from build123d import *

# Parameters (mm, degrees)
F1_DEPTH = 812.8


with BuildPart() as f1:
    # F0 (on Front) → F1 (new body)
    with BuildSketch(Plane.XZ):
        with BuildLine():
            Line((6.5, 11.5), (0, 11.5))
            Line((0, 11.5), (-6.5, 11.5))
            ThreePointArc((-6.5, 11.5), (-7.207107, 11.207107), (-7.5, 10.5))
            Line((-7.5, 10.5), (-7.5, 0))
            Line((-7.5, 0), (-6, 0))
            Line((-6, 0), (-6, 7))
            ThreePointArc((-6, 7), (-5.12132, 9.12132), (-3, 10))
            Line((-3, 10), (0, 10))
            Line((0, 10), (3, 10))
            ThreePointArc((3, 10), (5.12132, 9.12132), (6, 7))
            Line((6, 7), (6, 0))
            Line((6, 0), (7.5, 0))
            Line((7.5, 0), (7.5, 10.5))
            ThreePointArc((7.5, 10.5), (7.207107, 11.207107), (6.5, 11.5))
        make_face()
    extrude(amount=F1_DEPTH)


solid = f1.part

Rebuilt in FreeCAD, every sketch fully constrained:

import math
import FreeCAD as App
import Part
import Sketcher

doc = App.newDocument("Part")
body = doc.addObject("PartDesign::Body", "Body")

# Sketch on XZ plane
sketch1 = doc.addObject("Sketcher::SketchObject", "Sketch")
body.addObject(sketch1)
sketch1.AttachmentSupport = (doc.XZ_Plane, [""])
sketch1.MapMode = "FlatFace"
sketch1.addGeometry(Part.LineSegment(App.Vector(6.5, 11.5, 0), App.Vector(-6.5, 11.5, 0)), False)
sketch1.addGeometry(Part.ArcOfCircle(Part.Circle(App.Vector(-6.500001, 10.500001, 0), App.Vector(0, 0, 1), 0.999999), math.radians(89.999957), math.radians(180.000043)), False)
sketch1.addGeometry(Part.LineSegment(App.Vector(-7.5, 10.5, 0), App.Vector(-7.5, 0, 0)), False)
sketch1.addGeometry(Part.LineSegment(App.Vector(-7.5, 0, 0), App.Vector(-6, 0, 0)), False)
sketch1.addGeometry(Part.LineSegment(App.Vector(-6, 0, 0), App.Vector(-6, 7, 0)), False)
sketch1.addGeometry(Part.ArcOfCircle(Part.Circle(App.Vector(-2.999999, 6.999999, 0), App.Vector(0, 0, 1), 3.000001), math.radians(90.000022), math.radians(179.999978)), False)
sketch1.addGeometry(Part.LineSegment(App.Vector(-3, 10, 0), App.Vector(3, 10, 0)), False)
sketch1.addGeometry(Part.ArcOfCircle(Part.Circle(App.Vector(2.999999, 6.999999, 0), App.Vector(0, 0, 1), 3.000001), math.radians(0.000022), math.radians(89.999978)), False)
sketch1.addGeometry(Part.LineSegment(App.Vector(6, 7, 0), App.Vector(6, 0, 0)), False)
sketch1.addGeometry(Part.LineSegment(App.Vector(6, 0, 0), App.Vector(7.5, 0, 0)), False)
sketch1.addGeometry(Part.LineSegment(App.Vector(7.5, 0, 0), App.Vector(7.5, 10.5, 0)), False)
sketch1.addGeometry(Part.ArcOfCircle(Part.Circle(App.Vector(6.500001, 10.500001, 0), App.Vector(0, 0, 1), 0.999999), math.radians(-0.000043), math.radians(90.000043)), False)
sketch1.addConstraint(Sketcher.Constraint("Tangent", 0, 2, 1, 1))
sketch1.addConstraint(Sketcher.Constraint("Tangent", 1, 2, 2, 1))
sketch1.addConstraint(Sketcher.Constraint("Coincident", 2, 2, 3, 1))
sketch1.addConstraint(Sketcher.Constraint("Coincident", 3, 2, 4, 1))
sketch1.addConstraint(Sketcher.Constraint("Tangent", 4, 2, 5, 2))
sketch1.addConstraint(Sketcher.Constraint("Tangent", 5, 1, 6, 1))
sketch1.addConstraint(Sketcher.Constraint("Tangent", 6, 2, 7, 2))
sketch1.addConstraint(Sketcher.Constraint("Tangent", 7, 1, 8, 1))
sketch1.addConstraint(Sketcher.Constraint("Coincident", 8, 2, 9, 1))
sketch1.addConstraint(Sketcher.Constraint("Coincident", 9, 2, 10, 1))
sketch1.addConstraint(Sketcher.Constraint("Tangent", 10, 2, 11, 1))
sketch1.addConstraint(Sketcher.Constraint("Tangent", 11, 2, 0, 1))
sketch1.addConstraint(Sketcher.Constraint("Horizontal", 0))
sketch1.addConstraint(Sketcher.Constraint("Vertical", 2))
sketch1.addConstraint(Sketcher.Constraint("Horizontal", 3))
sketch1.addConstraint(Sketcher.Constraint("Vertical", 4))
sketch1.addConstraint(Sketcher.Constraint("Horizontal", 6))
sketch1.addConstraint(Sketcher.Constraint("Vertical", 8))
sketch1.addConstraint(Sketcher.Constraint("Horizontal", 9))
sketch1.addConstraint(Sketcher.Constraint("Vertical", 10))
sketch1.addConstraint(Sketcher.Constraint("Equal", 5, 7))
sketch1.addConstraint(Sketcher.Constraint("Equal", 1, 11))
sketch1.addConstraint(Sketcher.Constraint("Symmetric", 3, 2, 8, 2, -1, 1))
sketch1.addConstraint(Sketcher.Constraint("Symmetric", 2, 2, 9, 2, -2))
sketch1.addConstraint(Sketcher.Constraint("Radius", 1, 0.999999))
sketch1.addConstraint(Sketcher.Constraint("Radius", 5, 3.000001))
sketch1.addConstraint(Sketcher.Constraint("DistanceX", 0, 2, 0, 1, 13.0))
sketch1.addConstraint(Sketcher.Constraint("DistanceX", 6, 1, 6, 2, 6.0))
sketch1.addConstraint(Sketcher.Constraint("DistanceY", 4, 1, 4, 2, 7.0))
sketch1.addConstraint(Sketcher.Constraint("DistanceY", 2, 2, 2, 1, 10.5))
pad1 = doc.addObject("PartDesign::Pad", "Pad")
body.addObject(pad1)
pad1.Profile = sketch1
pad1.Length = 812.8

doc.recompute()
